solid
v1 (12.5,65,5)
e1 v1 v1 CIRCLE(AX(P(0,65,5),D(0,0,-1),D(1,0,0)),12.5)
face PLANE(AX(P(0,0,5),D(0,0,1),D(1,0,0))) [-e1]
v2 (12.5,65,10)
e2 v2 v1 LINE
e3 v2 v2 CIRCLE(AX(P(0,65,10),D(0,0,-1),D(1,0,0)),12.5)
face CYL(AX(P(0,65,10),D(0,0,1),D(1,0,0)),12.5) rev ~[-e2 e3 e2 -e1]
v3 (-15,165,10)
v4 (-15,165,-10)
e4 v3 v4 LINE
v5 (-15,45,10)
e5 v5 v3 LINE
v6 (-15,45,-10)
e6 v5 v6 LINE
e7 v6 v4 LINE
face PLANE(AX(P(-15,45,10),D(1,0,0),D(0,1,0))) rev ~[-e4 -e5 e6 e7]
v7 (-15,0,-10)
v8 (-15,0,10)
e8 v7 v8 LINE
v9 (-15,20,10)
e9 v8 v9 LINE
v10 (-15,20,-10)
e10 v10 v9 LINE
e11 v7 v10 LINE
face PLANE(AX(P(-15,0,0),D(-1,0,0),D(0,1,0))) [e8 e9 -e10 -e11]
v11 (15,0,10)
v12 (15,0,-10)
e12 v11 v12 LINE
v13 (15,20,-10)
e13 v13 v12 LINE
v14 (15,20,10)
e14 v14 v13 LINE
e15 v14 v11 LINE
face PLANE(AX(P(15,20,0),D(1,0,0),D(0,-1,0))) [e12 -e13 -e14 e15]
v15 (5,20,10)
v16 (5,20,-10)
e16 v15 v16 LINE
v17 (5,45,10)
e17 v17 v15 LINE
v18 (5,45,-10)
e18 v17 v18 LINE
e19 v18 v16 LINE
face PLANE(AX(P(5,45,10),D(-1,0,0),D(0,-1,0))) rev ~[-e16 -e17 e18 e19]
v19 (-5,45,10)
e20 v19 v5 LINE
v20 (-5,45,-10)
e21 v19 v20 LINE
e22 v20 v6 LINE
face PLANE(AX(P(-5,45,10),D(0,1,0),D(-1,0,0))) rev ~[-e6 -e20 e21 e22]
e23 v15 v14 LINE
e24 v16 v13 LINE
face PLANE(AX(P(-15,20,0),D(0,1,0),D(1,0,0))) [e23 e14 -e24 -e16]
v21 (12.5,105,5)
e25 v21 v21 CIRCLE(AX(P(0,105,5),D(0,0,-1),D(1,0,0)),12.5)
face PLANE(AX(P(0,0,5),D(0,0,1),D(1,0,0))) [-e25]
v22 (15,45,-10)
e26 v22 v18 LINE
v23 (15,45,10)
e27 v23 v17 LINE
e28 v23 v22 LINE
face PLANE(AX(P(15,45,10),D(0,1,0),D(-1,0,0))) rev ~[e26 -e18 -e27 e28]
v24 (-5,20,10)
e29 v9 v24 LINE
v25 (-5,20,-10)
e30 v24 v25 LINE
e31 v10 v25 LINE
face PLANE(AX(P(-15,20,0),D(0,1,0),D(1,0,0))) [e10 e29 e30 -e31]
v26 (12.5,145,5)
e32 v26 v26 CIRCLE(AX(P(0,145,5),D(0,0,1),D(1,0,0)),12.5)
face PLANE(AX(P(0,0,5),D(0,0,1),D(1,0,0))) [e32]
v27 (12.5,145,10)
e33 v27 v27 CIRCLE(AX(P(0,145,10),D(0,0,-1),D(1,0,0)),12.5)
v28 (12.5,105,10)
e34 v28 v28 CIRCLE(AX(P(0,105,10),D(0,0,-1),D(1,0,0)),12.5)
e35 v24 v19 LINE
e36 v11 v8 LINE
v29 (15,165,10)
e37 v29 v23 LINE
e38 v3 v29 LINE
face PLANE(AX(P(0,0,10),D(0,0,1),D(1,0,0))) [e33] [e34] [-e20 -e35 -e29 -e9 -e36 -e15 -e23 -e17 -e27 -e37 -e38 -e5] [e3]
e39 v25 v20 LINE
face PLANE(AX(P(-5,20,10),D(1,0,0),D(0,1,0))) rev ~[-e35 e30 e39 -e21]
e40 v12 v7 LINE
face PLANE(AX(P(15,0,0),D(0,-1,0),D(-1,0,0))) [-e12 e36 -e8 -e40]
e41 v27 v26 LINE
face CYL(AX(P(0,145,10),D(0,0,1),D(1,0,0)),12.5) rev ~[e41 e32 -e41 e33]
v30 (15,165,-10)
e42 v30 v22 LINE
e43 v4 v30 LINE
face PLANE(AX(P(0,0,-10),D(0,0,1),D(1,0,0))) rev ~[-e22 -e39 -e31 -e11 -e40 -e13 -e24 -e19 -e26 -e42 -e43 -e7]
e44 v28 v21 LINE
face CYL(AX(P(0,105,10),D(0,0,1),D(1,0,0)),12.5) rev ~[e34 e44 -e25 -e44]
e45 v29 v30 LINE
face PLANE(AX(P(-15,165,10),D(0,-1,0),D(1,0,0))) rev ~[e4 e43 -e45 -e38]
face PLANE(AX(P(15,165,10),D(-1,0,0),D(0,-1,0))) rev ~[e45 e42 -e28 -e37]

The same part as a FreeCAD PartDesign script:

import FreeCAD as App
import Part
import Sketcher

doc = App.newDocument("Part")
body = doc.addObject("PartDesign::Body", "Body")

# Sketch on XY plane
sketch1 = body.newObject("Sketcher::SketchObject", "Sketch")
sketch1.AttachmentSupport = (doc.getObject("XY_Plane"), [""])
sketch1.MapMode = "FlatFace"
sketch1.addGeometry([
    Part.LineSegment(App.Vector(15, 20, 0), App.Vector(-15, 20, 0)),
    Part.LineSegment(App.Vector(-15, 20, 0), App.Vector(-15, 0, 0)),
    Part.LineSegment(App.Vector(-15, 0, 0), App.Vector(15, 0, 0)),
    Part.LineSegment(App.Vector(15, 0, 0), App.Vector(15, 20, 0)),
], False)
sketch1.addConstraint([
    Sketcher.Constraint("Coincident", 0, 2, 1, 1),
    Sketcher.Constraint("Coincident", 1, 2, 2, 1),
    Sketcher.Constraint("Coincident", 2, 2, 3, 1),
    Sketcher.Constraint("Coincident", 3, 2, 0, 1),
    Sketcher.Constraint("Horizontal", 0),
    Sketcher.Constraint("Vertical", 1),
    Sketcher.Constraint("Horizontal", 2),
    Sketcher.Constraint("Vertical", 3),
    Sketcher.Constraint("Symmetric", 1, 2, 2, 2, -1, 1),
    Sketcher.Constraint("DistanceX", 0, 2, 0, 1, 30.0),
    Sketcher.Constraint("DistanceY", 1, 2, 1, 1, 20.0),
])
pad1 = body.newObject("PartDesign::Pad", "Pad")
pad1.Profile = sketch1
pad1.Length = 20
pad1.Midplane = True

# Sketch on XY plane
sketch2 = body.newObject("Sketcher::SketchObject", "Sketch001")
sketch2.AttachmentSupport = (doc.getObject("XY_Plane"), [""])
sketch2.MapMode = "FlatFace"
sketch2.AttachmentOffset = App.Placement(App.Vector(0, 0, 10), App.Rotation())
sketch2.addGeometry([
    Part.LineSegment(App.Vector(5, 45, 0), App.Vector(-5, 45, 0)),
    Part.LineSegment(App.Vector(-5, 45, 0), App.Vector(-5, 20, 0)),
    Part.LineSegment(App.Vector(-5, 20, 0), App.Vector(5, 20, 0)),
    Part.LineSegment(App.Vector(5, 20, 0), App.Vector(5, 45, 0)),
], False)
sketch2.addConstraint([
    Sketcher.Constraint("Coincident", 0, 2, 1, 1),
    Sketcher.Constraint("Coincident", 1, 2, 2, 1),
    Sketcher.Constraint("Coincident", 2, 2, 3, 1),
    Sketcher.Constraint("Coincident", 3, 2, 0, 1),
    Sketcher.Constraint("Horizontal", 0),
    Sketcher.Constraint("Vertical", 1),
    Sketcher.Constraint("Horizontal", 2),
    Sketcher.Constraint("Vertical", 3),
    Sketcher.Constraint("DistanceX", 0, 2, 0, 1, 10.0),
    Sketcher.Constraint("DistanceY", 1, 2, 1, 1, 25.0),
    Sketcher.Constraint("DistanceX", 0, 2, -1, 1, 5.0),
    Sketcher.Constraint("DistanceY", -1, 1, 0, 2, 45.0),
])
pad2 = body.newObject("PartDesign::Pad", "Pad001")
pad2.Profile = sketch2
pad2.Length = 20
pad2.Reversed = True

# Sketch on XY plane
sketch3 = body.newObject("Sketcher::SketchObject", "Sketch002")
sketch3.AttachmentSupport = (doc.getObject("XY_Plane"), [""])
sketch3.MapMode = "FlatFace"
sketch3.AttachmentOffset = App.Placement(App.Vector(0, 0, 10), App.Rotation())
sketch3.addGeometry([
    Part.LineSegment(App.Vector(15, 165, 0), App.Vector(-15, 165, 0)),
    Part.LineSegment(App.Vector(-15, 165, 0), App.Vector(-15, 45, 0)),
    Part.LineSegment(App.Vector(-15, 45, 0), App.Vector(15, 45, 0)),
    Part.LineSegment(App.Vector(15, 45, 0), App.Vector(15, 165, 0)),
], False)
sketch3.addConstraint([
    Sketcher.Constraint("Coincident", 0, 2, 1, 1),
    Sketcher.Constraint("Coincident", 1, 2, 2, 1),
    Sketcher.Constraint("Coincident", 2, 2, 3, 1),
    Sketcher.Constraint("Coincident", 3, 2, 0, 1),
    Sketcher.Constraint("Horizontal", 0),
    Sketcher.Constraint("Vertical", 1),
    Sketcher.Constraint("Horizontal", 2),
    Sketcher.Constraint("Vertical", 3),
    Sketcher.Constraint("DistanceX", 0, 2, 0, 1, 30.0),
    Sketcher.Constraint("DistanceY", 1, 2, 1, 1, 120.0),
    Sketcher.Constraint("DistanceX", 0, 2, -1, 1, 15.0),
    Sketcher.Constraint("DistanceY", -1, 1, 0, 2, 165.0),
])
pad3 = body.newObject("PartDesign::Pad", "Pad002")
pad3.Profile = sketch3
pad3.Length = 20
pad3.Reversed = True

# Sketch on XY plane
sketch4 = body.newObject("Sketcher::SketchObject", "Sketch003")
sketch4.AttachmentSupport = (doc.getObject("XY_Plane"), [""])
sketch4.MapMode = "FlatFace"
sketch4.AttachmentOffset = App.Placement(App.Vector(0, 0, 10), App.Rotation())
sketch4.addGeometry(Part.Circle(App.Vector(0, 145, 0), App.Vector(0, 0, 1), 12), False)
sketch4.addConstraint([
    Sketcher.Constraint("PointOnObject", 0, 3, -2),
    Sketcher.Constraint("Diameter", 0, 25.0),
    Sketcher.Constraint("DistanceY", -1, 1, 0, 3, 145.0),
])
pocket1 = body.newObject("PartDesign::Pocket", "Pocket")
pocket1.Profile = sketch4
pocket1.Length = 5

# Sketch on XY plane
sketch5 = body.newObject("Sketcher::SketchObject", "Sketch004")
sketch5.AttachmentSupport = (doc.getObject("XY_Plane"), [""])
sketch5.MapMode = "FlatFace"
sketch5.AttachmentOffset = App.Placement(App.Vector(0, 0, 10), App.Rotation())
sketch5.addGeometry(Part.Circle(App.Vector(0, 105, 0), App.Vector(0, 0, 1), 12), False)
sketch5.addConstraint([
    Sketcher.Constraint("PointOnObject", 0, 3, -2),
    Sketcher.Constraint("Diameter", 0, 25.0),
    Sketcher.Constraint("DistanceY", -1, 1, 0, 3, 105.0),
])
pocket2 = body.newObject("PartDesign::Pocket", "Pocket001")
pocket2.Profile = sketch5
pocket2.Length = 5

# Sketch on XY plane
sketch6 = body.newObject("Sketcher::SketchObject", "Sketch005")
sketch6.AttachmentSupport = (doc.getObject("XY_Plane"), [""])
sketch6.MapMode = "FlatFace"
sketch6.AttachmentOffset = App.Placement(App.Vector(0, 0, 10), App.Rotation())
sketch6.addGeometry(Part.Circle(App.Vector(0, 65, 0), App.Vector(0, 0, 1), 12), False)
sketch6.addConstraint([
    Sketcher.Constraint("PointOnObject", 0, 3, -2),
    Sketcher.Constraint("Diameter", 0, 25.0),
    Sketcher.Constraint("DistanceY", -1, 1, 0, 3, 65.0),
])
pocket3 = body.newObject("PartDesign::Pocket", "Pocket002")
pocket3.Profile = sketch6
pocket3.Length = 5

doc.recompute()
